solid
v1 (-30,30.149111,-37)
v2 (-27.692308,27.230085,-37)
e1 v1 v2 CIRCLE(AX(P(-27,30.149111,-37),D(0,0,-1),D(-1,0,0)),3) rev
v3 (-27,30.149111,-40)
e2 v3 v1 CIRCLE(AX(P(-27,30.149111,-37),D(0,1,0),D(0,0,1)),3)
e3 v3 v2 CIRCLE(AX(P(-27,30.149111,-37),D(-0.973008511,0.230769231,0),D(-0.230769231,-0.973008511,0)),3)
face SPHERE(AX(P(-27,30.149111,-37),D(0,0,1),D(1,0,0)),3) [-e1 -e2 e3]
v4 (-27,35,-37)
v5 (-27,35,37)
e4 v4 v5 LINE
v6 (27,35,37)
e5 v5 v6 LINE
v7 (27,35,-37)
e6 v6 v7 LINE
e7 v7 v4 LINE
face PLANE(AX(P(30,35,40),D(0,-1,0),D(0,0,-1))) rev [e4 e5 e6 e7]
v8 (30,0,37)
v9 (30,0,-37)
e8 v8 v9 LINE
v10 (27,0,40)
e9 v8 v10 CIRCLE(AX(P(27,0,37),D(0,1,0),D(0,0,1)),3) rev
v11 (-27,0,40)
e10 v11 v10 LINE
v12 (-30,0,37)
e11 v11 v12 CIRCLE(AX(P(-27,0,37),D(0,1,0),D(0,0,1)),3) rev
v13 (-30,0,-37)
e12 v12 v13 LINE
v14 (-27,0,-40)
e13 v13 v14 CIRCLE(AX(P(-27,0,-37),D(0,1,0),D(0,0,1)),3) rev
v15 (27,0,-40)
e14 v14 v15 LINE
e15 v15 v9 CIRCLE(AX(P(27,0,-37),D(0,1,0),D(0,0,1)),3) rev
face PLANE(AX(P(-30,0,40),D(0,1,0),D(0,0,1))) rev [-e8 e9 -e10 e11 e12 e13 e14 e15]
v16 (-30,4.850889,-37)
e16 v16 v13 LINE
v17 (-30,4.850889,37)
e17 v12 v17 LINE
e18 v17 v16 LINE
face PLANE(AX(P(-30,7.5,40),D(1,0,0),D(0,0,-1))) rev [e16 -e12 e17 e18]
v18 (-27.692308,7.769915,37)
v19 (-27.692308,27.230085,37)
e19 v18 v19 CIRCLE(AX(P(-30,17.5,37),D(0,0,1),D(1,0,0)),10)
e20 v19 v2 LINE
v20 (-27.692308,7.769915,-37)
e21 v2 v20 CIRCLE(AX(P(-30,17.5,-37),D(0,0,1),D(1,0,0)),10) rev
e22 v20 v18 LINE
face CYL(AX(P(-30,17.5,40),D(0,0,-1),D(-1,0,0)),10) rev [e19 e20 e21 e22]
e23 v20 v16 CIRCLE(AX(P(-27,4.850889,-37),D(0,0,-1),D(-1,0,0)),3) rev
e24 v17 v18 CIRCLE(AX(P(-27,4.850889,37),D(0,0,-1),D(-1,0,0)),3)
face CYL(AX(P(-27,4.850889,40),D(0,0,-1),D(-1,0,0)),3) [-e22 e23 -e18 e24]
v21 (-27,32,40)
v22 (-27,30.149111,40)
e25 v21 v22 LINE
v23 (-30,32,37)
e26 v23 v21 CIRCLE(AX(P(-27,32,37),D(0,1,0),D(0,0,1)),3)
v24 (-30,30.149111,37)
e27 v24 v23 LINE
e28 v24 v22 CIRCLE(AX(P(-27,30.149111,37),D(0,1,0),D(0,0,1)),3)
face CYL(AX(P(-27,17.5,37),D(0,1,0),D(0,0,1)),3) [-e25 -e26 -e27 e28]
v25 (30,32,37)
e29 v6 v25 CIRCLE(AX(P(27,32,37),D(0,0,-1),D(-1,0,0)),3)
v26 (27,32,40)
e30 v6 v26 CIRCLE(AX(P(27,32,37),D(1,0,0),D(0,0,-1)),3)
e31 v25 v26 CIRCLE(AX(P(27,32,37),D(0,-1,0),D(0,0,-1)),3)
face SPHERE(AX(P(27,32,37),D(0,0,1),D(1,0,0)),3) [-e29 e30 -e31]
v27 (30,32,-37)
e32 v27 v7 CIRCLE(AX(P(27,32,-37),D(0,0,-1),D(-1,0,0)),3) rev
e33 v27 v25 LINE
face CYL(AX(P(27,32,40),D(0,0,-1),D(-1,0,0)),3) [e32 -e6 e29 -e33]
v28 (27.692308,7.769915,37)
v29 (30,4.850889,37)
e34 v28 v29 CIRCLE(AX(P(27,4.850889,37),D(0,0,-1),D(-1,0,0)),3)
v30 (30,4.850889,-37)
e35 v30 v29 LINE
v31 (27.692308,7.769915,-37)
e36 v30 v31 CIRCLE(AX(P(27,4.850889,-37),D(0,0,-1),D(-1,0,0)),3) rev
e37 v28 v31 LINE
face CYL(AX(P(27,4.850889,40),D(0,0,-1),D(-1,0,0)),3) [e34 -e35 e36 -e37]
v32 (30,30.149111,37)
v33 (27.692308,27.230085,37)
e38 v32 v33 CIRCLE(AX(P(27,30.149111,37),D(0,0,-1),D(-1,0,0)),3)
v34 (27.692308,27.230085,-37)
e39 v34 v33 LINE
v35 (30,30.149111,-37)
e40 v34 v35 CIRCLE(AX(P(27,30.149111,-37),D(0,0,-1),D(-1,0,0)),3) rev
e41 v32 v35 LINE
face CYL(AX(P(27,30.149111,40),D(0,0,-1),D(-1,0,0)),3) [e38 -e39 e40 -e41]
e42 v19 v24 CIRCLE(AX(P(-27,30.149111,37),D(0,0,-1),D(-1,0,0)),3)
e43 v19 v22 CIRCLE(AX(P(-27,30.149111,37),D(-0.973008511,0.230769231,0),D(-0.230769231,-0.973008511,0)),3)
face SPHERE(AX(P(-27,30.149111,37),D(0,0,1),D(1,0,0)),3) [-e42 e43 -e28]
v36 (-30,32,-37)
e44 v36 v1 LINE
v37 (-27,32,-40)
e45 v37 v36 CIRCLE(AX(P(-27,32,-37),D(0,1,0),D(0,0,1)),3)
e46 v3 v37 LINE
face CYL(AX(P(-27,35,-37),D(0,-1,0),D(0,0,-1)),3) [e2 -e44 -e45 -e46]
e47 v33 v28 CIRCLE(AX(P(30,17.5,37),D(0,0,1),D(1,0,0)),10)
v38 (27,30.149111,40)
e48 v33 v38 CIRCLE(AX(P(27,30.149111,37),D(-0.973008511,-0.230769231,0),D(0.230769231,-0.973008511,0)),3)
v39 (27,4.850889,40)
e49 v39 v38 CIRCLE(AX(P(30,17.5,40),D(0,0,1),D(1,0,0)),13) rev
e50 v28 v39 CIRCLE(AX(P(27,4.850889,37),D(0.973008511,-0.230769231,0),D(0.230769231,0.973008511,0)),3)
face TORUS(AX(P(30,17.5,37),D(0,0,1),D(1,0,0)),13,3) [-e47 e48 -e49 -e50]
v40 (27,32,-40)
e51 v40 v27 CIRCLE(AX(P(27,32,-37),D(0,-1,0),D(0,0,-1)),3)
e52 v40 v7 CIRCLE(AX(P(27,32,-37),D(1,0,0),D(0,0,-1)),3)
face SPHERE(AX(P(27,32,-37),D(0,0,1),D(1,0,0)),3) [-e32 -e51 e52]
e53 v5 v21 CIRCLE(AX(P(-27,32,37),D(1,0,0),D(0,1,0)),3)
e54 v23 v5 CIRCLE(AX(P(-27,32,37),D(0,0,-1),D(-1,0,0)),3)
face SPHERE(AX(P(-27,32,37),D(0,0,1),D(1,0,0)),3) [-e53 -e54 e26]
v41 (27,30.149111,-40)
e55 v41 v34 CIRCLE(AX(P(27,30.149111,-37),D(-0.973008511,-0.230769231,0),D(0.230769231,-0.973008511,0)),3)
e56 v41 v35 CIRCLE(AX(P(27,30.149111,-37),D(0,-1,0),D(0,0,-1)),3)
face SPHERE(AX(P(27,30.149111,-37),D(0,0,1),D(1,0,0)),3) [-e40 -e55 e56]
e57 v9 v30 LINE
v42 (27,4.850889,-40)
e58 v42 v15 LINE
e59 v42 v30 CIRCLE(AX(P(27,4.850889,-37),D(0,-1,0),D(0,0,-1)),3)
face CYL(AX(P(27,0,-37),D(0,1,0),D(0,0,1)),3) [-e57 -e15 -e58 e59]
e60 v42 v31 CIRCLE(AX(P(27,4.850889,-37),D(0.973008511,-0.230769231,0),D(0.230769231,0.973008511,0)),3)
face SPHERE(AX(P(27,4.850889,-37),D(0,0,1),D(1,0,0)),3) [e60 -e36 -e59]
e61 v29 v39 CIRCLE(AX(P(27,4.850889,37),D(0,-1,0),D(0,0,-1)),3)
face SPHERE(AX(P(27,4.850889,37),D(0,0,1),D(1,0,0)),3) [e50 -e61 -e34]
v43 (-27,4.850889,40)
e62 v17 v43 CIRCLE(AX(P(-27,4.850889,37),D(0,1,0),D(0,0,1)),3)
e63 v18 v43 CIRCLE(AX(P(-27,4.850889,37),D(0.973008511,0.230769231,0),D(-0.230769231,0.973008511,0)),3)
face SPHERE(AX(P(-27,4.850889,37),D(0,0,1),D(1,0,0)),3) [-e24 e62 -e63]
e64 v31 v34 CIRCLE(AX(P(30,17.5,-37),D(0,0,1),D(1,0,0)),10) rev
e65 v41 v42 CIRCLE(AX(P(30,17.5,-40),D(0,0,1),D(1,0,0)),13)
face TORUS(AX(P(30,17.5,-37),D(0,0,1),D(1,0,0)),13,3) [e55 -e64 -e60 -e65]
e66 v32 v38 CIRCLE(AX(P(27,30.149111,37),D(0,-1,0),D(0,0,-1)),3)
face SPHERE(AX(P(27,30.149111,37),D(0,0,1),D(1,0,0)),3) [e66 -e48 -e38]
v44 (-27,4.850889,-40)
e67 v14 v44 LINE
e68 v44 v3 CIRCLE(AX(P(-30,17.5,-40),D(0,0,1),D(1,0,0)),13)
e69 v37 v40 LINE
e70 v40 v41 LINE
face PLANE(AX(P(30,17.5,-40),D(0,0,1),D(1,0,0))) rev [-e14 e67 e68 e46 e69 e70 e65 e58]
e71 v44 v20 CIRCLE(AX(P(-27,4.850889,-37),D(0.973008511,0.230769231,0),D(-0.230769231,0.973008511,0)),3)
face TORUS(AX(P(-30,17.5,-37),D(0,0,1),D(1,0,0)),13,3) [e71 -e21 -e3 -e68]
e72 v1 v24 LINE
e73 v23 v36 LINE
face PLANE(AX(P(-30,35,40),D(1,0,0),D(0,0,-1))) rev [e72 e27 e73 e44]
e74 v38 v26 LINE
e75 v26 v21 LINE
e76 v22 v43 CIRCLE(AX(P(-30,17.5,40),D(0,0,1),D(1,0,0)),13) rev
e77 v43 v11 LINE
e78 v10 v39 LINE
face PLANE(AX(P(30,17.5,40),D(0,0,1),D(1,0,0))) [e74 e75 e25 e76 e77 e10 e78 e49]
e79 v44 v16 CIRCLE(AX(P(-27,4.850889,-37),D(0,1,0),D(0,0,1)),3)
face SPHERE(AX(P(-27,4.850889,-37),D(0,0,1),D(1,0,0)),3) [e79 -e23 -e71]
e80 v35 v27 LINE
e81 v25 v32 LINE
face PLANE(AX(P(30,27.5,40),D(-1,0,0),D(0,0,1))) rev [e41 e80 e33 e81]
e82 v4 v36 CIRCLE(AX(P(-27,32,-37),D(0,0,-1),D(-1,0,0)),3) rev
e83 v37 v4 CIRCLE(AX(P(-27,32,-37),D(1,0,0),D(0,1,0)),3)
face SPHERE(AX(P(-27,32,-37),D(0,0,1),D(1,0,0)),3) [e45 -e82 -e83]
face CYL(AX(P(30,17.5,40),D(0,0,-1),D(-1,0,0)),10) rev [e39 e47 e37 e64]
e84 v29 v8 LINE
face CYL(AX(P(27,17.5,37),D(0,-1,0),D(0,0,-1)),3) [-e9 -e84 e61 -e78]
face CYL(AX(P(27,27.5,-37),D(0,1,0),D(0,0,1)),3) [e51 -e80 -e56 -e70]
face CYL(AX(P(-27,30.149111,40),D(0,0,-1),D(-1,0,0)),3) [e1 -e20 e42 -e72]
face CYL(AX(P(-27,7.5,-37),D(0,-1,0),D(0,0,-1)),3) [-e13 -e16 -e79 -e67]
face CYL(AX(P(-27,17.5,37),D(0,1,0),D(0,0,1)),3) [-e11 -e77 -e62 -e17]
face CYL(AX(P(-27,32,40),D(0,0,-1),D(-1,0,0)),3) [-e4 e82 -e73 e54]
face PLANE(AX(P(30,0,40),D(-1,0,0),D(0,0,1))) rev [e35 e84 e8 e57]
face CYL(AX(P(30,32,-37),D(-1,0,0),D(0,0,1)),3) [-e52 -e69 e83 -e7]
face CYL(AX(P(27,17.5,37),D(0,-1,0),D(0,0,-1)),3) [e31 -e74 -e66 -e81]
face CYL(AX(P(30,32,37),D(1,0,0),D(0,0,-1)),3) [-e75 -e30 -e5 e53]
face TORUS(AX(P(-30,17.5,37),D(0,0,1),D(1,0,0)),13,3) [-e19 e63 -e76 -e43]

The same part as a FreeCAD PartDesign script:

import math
import FreeCAD as App
import Part
import Sketcher

V = App.Vector
Q = App.Units.Quantity


def edges_at(feature, points):
    """Names of the edges that pass closest to the given points."""
    edges = feature.Shape.Edges
    near = lambda p: min(range(len(edges)), key=lambda i: edges[i].distToShape(Part.Vertex(*p))[0])
    return sorted({f"Edge{near(p) + 1}" for p in points})

doc = App.newDocument("Part")
body = doc.addObject("PartDesign::Body", "Body")

# Sketch on XY plane
sketch1 = body.newObject("Sketcher::SketchObject", "Sketch")
sketch1.AttachmentSupport = (doc.getObject("XY_Plane"), [""])
sketch1.MapMode = "FlatFace"
sketch1.addGeometry([
    Part.LineSegment(V(-30, 0, 0), V(30, 0, 0)),  # 0
    Part.LineSegment(V(30, 0, 0), V(30, 7.5, 0)),  # 1
    Part.ArcOfCircle(Part.Circle(V(30, 17.5, 0), V(0, 0, 1), 10), math.radians(90), math.radians(270)),  # 2
    Part.LineSegment(V(30, 27.5, 0), V(30, 35, 0)),  # 3
    Part.LineSegment(V(30, 35, 0), V(-30, 35, 0)),  # 4
    Part.LineSegment(V(-30, 35, 0), V(-30, 27.5, 0)),  # 5
    Part.ArcOfCircle(Part.Circle(V(-30, 17.5, 0), V(0, 0, 1), 10), math.radians(-90), math.radians(90)),  # 6
    Part.LineSegment(V(-30, 7.5, 0), V(-30, 0, 0)),  # 7
], False)
sketch1.addConstraint([
    Sketcher.Constraint("Coincident", 0, 2, 1, 1),
    Sketcher.Constraint("Coincident", 1, 2, 2, 2),
    Sketcher.Constraint("Coincident", 2, 1, 3, 1),
    Sketcher.Constraint("Coincident", 3, 2, 4, 1),
    Sketcher.Constraint("Coincident", 4, 2, 5, 1),
    Sketcher.Constraint("Coincident", 5, 2, 6, 2),
    Sketcher.Constraint("Coincident", 6, 1, 7, 1),
    Sketcher.Constraint("Coincident", 7, 2, 0, 1),
    Sketcher.Constraint("Horizontal", 0),
    Sketcher.Constraint("Vertical", 1),
    Sketcher.Constraint("Vertical", 3),
    Sketcher.Constraint("Horizontal", 4),
    Sketcher.Constraint("Vertical", 5),
    Sketcher.Constraint("Vertical", 7),
    Sketcher.Constraint("Equal", 2, 6),
    Sketcher.Constraint("Symmetric", 0, 2, 7, 2, -1, 1),
    Sketcher.Constraint("Symmetric", 2, 3, 6, 3, -2),
    Sketcher.Constraint("Vertical", 2, 3, 0, 2),
    Sketcher.Constraint("Vertical", 1, 2, 2, 1),
    Sketcher.Constraint("Vertical", 6, 3, 4, 2),
    Sketcher.Constraint("Equal", 1, 3),
    Sketcher.Constraint("Radius", 2, Q("10 mm")),
    Sketcher.Constraint("DistanceX", 0, 1, 0, 2, Q("60 mm")),
    Sketcher.Constraint("DistanceY", 1, 1, 1, 2, Q("7.5 mm")),
])
pad1 = body.newObject("PartDesign::Pad", "Pad")
pad1.Profile = sketch1
pad1.Length = 80
pad1.Midplane = True
doc.recompute()

fillet = body.newObject("PartDesign::Fillet", "Fillet")
fillet.Base = (pad1, edges_at(pad1, [
    (-30, 7.5, 0),
    (-30, 27.5, 0),
    (-30, 35, 0),
    (30, 35, 0),
    (30, 27.5, 0),
    (30, 7.5, 0),
]))
fillet.Radius = 3
doc.recompute()

fillet2 = body.newObject("PartDesign::Fillet", "Fillet001")
fillet2.Base = (fillet, edges_at(fillet, [
    (30, 2.425, 40),
    (20, 17.5, -40),
    (20, 17.5, 40),
    (-30, 2.425, -40),
    (-20, 17.5, -40),
    (-30, 31.075, -40),
    (0, 35, -40),
    (30, 31.075, -40),
    (29.121, 34.121, -40),
    (-29.121, 34.121, -40),
    (29.353, 28.289, -40),
    (-29.353, 28.289, -40),
    (-29.353, 6.711, -40),
    (29.353, 6.711, -40),
    (-30, 2.425, 40),
    (30, 31.075, 40),
    (0, 35, 40),
    (-30, 31.075, 40),
    (-20, 17.5, 40),
    (29.121, 34.121, 40),
    (-29.121, 34.121, 40),
    (29.353, 28.289, 40),
    (-29.353, 28.289, 40),
    (-29.353, 6.711, 40),
    (29.353, 6.711, 40),
    (30, 2.425, -40),
]))
fillet2.Radius = 3

doc.recompute()
